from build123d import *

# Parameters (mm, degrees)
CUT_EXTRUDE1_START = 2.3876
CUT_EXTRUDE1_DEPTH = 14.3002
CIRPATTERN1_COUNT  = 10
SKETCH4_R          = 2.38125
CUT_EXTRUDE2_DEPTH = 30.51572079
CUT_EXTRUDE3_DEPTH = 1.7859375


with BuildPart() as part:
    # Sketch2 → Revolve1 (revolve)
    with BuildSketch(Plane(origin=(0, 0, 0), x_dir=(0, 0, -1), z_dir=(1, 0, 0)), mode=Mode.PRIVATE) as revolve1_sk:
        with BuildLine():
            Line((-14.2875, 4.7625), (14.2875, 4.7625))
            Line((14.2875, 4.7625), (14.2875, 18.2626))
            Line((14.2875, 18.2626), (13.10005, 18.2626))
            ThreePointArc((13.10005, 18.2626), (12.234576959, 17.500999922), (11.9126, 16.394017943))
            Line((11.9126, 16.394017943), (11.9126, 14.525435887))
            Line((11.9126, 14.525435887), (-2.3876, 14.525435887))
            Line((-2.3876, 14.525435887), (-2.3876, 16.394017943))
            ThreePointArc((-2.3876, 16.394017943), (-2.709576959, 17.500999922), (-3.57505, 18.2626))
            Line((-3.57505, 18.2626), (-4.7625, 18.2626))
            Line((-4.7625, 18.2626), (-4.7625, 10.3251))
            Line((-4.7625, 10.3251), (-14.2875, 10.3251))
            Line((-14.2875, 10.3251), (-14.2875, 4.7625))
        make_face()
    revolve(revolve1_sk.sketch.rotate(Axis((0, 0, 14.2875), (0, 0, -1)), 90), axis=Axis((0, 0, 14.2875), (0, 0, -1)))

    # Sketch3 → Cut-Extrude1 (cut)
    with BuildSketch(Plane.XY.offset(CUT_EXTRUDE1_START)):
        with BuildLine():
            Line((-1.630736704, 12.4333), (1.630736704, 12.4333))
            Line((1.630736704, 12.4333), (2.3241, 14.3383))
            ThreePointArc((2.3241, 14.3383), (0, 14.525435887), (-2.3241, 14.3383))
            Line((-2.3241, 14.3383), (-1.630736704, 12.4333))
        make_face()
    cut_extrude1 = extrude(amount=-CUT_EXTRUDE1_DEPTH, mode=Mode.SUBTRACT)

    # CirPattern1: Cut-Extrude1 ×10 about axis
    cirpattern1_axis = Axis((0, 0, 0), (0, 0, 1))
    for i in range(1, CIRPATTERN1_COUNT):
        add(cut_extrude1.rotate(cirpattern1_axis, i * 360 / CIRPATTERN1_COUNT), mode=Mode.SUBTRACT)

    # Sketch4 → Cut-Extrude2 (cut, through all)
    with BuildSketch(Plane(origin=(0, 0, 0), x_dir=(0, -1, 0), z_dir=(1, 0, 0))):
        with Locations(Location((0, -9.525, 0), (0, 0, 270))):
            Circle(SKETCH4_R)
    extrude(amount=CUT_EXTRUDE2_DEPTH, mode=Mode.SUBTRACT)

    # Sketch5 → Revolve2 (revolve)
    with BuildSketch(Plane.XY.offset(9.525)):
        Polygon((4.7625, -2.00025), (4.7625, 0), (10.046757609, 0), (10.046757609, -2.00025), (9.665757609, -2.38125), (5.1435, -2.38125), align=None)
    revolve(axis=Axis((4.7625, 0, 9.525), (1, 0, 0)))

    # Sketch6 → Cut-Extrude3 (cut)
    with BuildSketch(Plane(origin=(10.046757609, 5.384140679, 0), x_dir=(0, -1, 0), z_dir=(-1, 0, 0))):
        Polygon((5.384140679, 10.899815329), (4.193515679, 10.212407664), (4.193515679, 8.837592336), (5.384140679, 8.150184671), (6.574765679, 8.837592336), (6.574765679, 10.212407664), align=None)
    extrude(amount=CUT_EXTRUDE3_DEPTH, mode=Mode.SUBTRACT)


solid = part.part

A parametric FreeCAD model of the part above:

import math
import FreeCAD as App
import Part
import Sketcher
from FreeCAD import Vector
Q = App.Units.Quantity

doc = App.newDocument("Part")
params = doc.addObject("Spreadsheet::Sheet", "Params")
for row, (alias, value) in enumerate([
    ("sketch1_width", "0.3125 in"),
    ("sketch1_width2", "0.219 in"),
    ("sketch1_height", "1.125 in"),
    ("sketch1_height2", "0.563 in"),
    ("sketch1_height3", "0.375 in"),
    ("revolution_angle", "360 deg"),
    ("pocket1_length", "0.563 in"),
    ("sketch3_diameter", "0.1875 in"),
    ("revolution2_angle", "360 deg"),
    ("pocket3_length", "1.785937 mm"),
], start=1):
    params.set(f"A{row}", alias)
    params.set(f"B{row}", "=" + value)
    params.setAlias(f"B{row}", alias)

body = doc.addObject("PartDesign::Body", "Body")

# Sketch on YZ plane
sketch1 = doc.addObject("Sketcher::SketchObject", "Sketch")
body.addObject(sketch1)
sketch1.AttachmentSupport = (doc.YZ_Plane, [""])
sketch1.MapMode = "FlatFace"
sketch1.addGeometry(Part.LineSegment(Vector(4.7625, 14.2875, 0), Vector(4.7625, -14.2875, 0)), False)
sketch1.addGeometry(Part.LineSegment(Vector(4.7625, -14.2875, 0), Vector(18.2626, -14.2875, 0)), False)
sketch1.addGeometry(Part.LineSegment(Vector(18.2626, -14.2875, 0), Vector(18.2626, -13.10005, 0)), False)
sketch1.addGeometry(Part.ArcOfCircle(Part.Circle(Vector(16.394018, -13.976534, 0), Vector(0, 0, 1), 2.063934), math.radians(25.129564), math.radians(90)), False)
sketch1.addGeometry(Part.LineSegment(Vector(16.394018, -11.9126, 0), Vector(14.525436, -11.9126, 0)), False)
sketch1.addGeometry(Part.LineSegment(Vector(14.525436, -11.9126, 0), Vector(14.525436, 2.3876, 0)), False)
sketch1.addGeometry(Part.LineSegment(Vector(14.525436, 2.3876, 0), Vector(16.394018, 2.3876, 0)), False)
sketch1.addGeometry(Part.ArcOfCircle(Part.Circle(Vector(16.394018, 4.451534, 0), Vector(0, 0, 1), 2.063934), math.radians(-90), math.radians(-25.129564)), False)
sketch1.addGeometry(Part.LineSegment(Vector(18.2626, 3.57505, 0), Vector(18.2626, 4.7625, 0)), False)
sketch1.addGeometry(Part.LineSegment(Vector(18.2626, 4.7625, 0), Vector(10.3251, 4.7625, 0)), False)
sketch1.addGeometry(Part.LineSegment(Vector(10.3251, 4.7625, 0), Vector(10.3251, 14.2875, 0)), False)
sketch1.addGeometry(Part.LineSegment(Vector(10.3251, 14.2875, 0), Vector(4.7625, 14.2875, 0)), False)
sketch1.addConstraint(Sketcher.Constraint("Coincident", 0, 2, 1, 1))
sketch1.addConstraint(Sketcher.Constraint("Coincident", 1, 2, 2, 1))
sketch1.addConstraint(Sketcher.Constraint("Coincident", 2, 2, 3, 1))
sketch1.addConstraint(Sketcher.Constraint("Tangent", 3, 2, 4, 1))
sketch1.addConstraint(Sketcher.Constraint("Coincident", 4, 2, 5, 1))
sketch1.addConstraint(Sketcher.Constraint("Coincident", 5, 2, 6, 1))
sketch1.addConstraint(Sketcher.Constraint("Tangent", 6, 2, 7, 1))
sketch1.addConstraint(Sketcher.Constraint("Coincident", 7, 2, 8, 1))
sketch1.addConstraint(Sketcher.Constraint("Coincident", 8, 2, 9, 1))
sketch1.addConstraint(Sketcher.Constraint("Coincident", 9, 2, 10, 1))
sketch1.addConstraint(Sketcher.Constraint("Coincident", 10, 2, 11, 1))
sketch1.addConstraint(Sketcher.Constraint("Coincident", 11, 2, 0, 1))
sketch1.addConstraint(Sketcher.Constraint("Vertical", 0))
sketch1.addConstraint(Sketcher.Constraint("Horizontal", 1))
sketch1.addConstraint(Sketcher.Constraint("Vertical", 2))
sketch1.addConstraint(Sketcher.Constraint("Horizontal", 4))
sketch1.addConstraint(Sketcher.Constraint("Vertical", 5))
sketch1.addConstraint(Sketcher.Constraint("Horizontal", 6))
sketch1.addConstraint(Sketcher.Constraint("Vertical", 8))
sketch1.addConstraint(Sketcher.Constraint("Horizontal", 9))
sketch1.addConstraint(Sketcher.Constraint("Vertical", 10))
sketch1.addConstraint(Sketcher.Constraint("Horizontal", 11))
sketch1.addConstraint(Sketcher.Constraint("Equal", 3, 7))
sketch1.addConstraint(Sketcher.Constraint("Vertical", 3, 3, 7, 3))
sketch1.addConstraint(Sketcher.Constraint("Vertical", 2, 2, 7, 2))
sketch1.addConstraint(Sketcher.Constraint("Equal", 2, 8))
sketch1.addConstraint(Sketcher.Constraint("DistanceX", 9, 2, 9, 1, Q("0.3125 in")))
sketch1.addConstraint(Sketcher.Constraint("DistanceX", 11, 2, 11, 1, Q("0.219 in")))
sketch1.addConstraint(Sketcher.Constraint("DistanceY", 0, 2, 0, 1, Q("1.125 in")))
sketch1.addConstraint(Sketcher.Constraint("DistanceY", 5, 1, 5, 2, Q("0.563 in")))
sketch1.addConstraint(Sketcher.Constraint("DistanceY", 10, 1, 10, 2, Q("0.375 in")))
sketch1.addConstraint(Sketcher.Constraint("DistanceX", -1, 1, 0, 2, Q("0.1875 in")))
sketch1.addConstraint(Sketcher.Constraint("DistanceY", 0, 2, -1, 1, Q("0.5625 in")))
sketch1.addConstraint(Sketcher.Constraint("Radius", 3, 2.063934))
sketch1.addConstraint(Sketcher.Constraint("DistanceY", 2, 1, 2, 2, 1.18745))
sketch1.addConstraint(Sketcher.Constraint("DistanceX", 4, 2, 4, 1, 1.868582))
sketch1.setExpression("Constraints[26]", "Params.sketch1_width")
sketch1.setExpression("Constraints[27]", "Params.sketch1_width2")
sketch1.setExpression("Constraints[28]", "Params.sketch1_height")
sketch1.setExpression("Constraints[29]", "Params.sketch1_height2")
sketch1.setExpression("Constraints[30]", "Params.sketch1_height3")
revolution = doc.addObject("PartDesign::Revolution", "Revolution")
body.addObject(revolution)
revolution.Profile = sketch1
revolution.ReferenceAxis = (sketch1, ["V_Axis"])
revolution.setExpression("Angle", "Params.revolution_angle")

# Sketch on XY plane
sketch2 = doc.addObject("Sketcher::SketchObject", "Sketch001")
body.addObject(sketch2)
sketch2.AttachmentSupport = (doc.XY_Plane, [""])
sketch2.MapMode = "FlatFace"
sketch2.AttachmentOffset = App.Placement(Vector(0, 0, 0.094 * 25.4), App.Rotation())
sketch2.addGeometry(Part.LineSegment(Vector(-1.630737, 12.4333, 0), Vector(1.630737, 12.4333, 0)), False)
sketch2.addGeometry(Part.LineSegment(Vector(1.630737, 12.4333, 0), Vector(2.3241, 14.3383, 0)), False)
sketch2.addGeometry(Part.ArcOfCircle(Part.Circle(Vector(0, 0, 0), Vector(0, 0, 1), 14.525436), math.radians(80.792983), math.radians(99.207017)), False)
sketch2.addGeometry(Part.LineSegment(Vector(-2.3241, 14.3383, 0), Vector(-1.630737, 12.4333, 0)), False)
sketch2.addConstraint(Sketcher.Constraint("Coincident", 0, 2, 1, 1))
sketch2.addConstraint(Sketcher.Constraint("Coincident", 1, 2, 2, 1))
sketch2.addConstraint(Sketcher.Constraint("Coincident", 2, 2, 3, 1))
sketch2.addConstraint(Sketcher.Constraint("Coincident", 3, 2, 0, 1))
sketch2.addConstraint(Sketcher.Constraint("Horizontal", 0))
sketch2.addConstraint(Sketcher.Constraint("Coincident", 2, 3, -1, 1))
sketch2.addConstraint(Sketcher.Constraint("Horizontal", 1, 2, 2, 2))
sketch2.addConstraint(Sketcher.Constraint("Equal", 1, 3))
sketch2.addConstraint(Sketcher.Constraint("Angle", 1, Q("70 deg")))
sketch2.addConstraint(Sketcher.Constraint("DistanceY", 0, 2, 1, 2, Q("0.075 in")))
sketch2.addConstraint(Sketcher.Constraint("DistanceX", 2, 2, 1, 2, Q("0.183 in")))
sketch2.addConstraint(Sketcher.Constraint("DistanceY", -1, 1, 0, 2, Q("0.4895 in")))
pocket1 = doc.addObject("PartDesign::Pocket", "Pocket")
body.addObject(pocket1)
pocket1.Profile = sketch2
pocket1.setExpression("Length", "Params.pocket1_length")
doc.recompute()

polarpattern = doc.addObject("PartDesign::PolarPattern", "PolarPattern")
body.addObject(polarpattern)
polarpattern.Originals = [pocket1]
polarpattern.Axis = (doc.Z_Axis, [""])
polarpattern.Angle = 360
polarpattern.Occurrences = 10
body.Tip = polarpattern

# Sketch on YZ plane
sketch3 = doc.addObject("Sketcher::SketchObject", "Sketch002")
body.addObject(sketch3)
sketch3.AttachmentSupport = (doc.YZ_Plane, [""])
sketch3.MapMode = "FlatFace"
sketch3.addGeometry(Part.Circle(Vector(0, 9.525, 0), Vector(0, 0, 1), 2.38125), False)
sketch3.addConstraint(Sketcher.Constraint("PointOnObject", 0, 3, -2))
sketch3.addConstraint(Sketcher.Constraint("Diameter", 0, Q("0.1875 in")))
sketch3.addConstraint(Sketcher.Constraint("DistanceY", -1, 1, 0, 3, Q("0.375 in")))
sketch3.setExpression("Constraints[1]", "Params.sketch3_diameter")
pocket2 = doc.addObject("PartDesign::Pocket", "Pocket001")
body.addObject(pocket2)
pocket2.Profile = sketch3
pocket2.Type = "ThroughAll"
pocket2.Reversed = True

# Sketch on XY plane
sketch4 = doc.addObject("Sketcher::SketchObject", "Sketch003")
body.addObject(sketch4)
sketch4.AttachmentSupport = (doc.XY_Plane, [""])
sketch4.MapMode = "FlatFace"
sketch4.AttachmentOffset = App.Placement(Vector(0, 0, 0.375 * 25.4), App.Rotation())
sketch4.addGeometry(Part.LineSegment(Vector(4.7625, 0, 0), Vector(4.7625, -2.00025, 0)), False)
sketch4.addGeometry(Part.LineSegment(Vector(4.7625, -2.00025, 0), Vector(5.1435, -2.38125, 0)), False)
sketch4.addGeometry(Part.LineSegment(Vector(5.1435, -2.38125, 0), Vector(9.665758, -2.38125, 0)), False)
sketch4.addGeometry(Part.LineSegment(Vector(9.665758, -2.38125, 0), Vector(10.046758, -2.00025, 0)), False)
sketch4.addGeometry(Part.LineSegment(Vector(10.046758, -2.00025, 0), Vector(10.046758, 0, 0)), False)
sketch4.addGeometry(Part.LineSegment(Vector(10.046758, 0, 0), Vector(4.7625, 0, 0)), False)
sketch4.addConstraint(Sketcher.Constraint("Coincident", 0, 2, 1, 1))
sketch4.addConstraint(Sketcher.Constraint("Coincident", 1, 2, 2, 1))
sketch4.addConstraint(Sketcher.Constraint("Coincident", 2, 2, 3, 1))
sketch4.addConstraint(Sketcher.Constraint("Coincident", 3, 2, 4, 1))
sketch4.addConstraint(Sketcher.Constraint("Coincident", 4, 2, 5, 1))
sketch4.addConstraint(Sketcher.Constraint("Coincident", 5, 2, 0, 1))
sketch4.addConstraint(Sketcher.Constraint("Vertical", 0))
sketch4.addConstraint(Sketcher.Constraint("Horizontal", 2))
sketch4.addConstraint(Sketcher.Constraint("Vertical", 4))
sketch4.addConstraint(Sketcher.Constraint("Horizontal", 5))
sketch4.addConstraint(Sketcher.Constraint("PointOnObject", 4, 2, -1))
sketch4.addConstraint(Sketcher.Constraint("Perpendicular", 1, 3))
sketch4.addConstraint(Sketcher.Constraint("Horizontal", 0, 2, 3, 2))
sketch4.addConstraint(Sketcher.Constraint("Equal", 1, 3))
sketch4.addConstraint(Sketcher.Constraint("DistanceX", -1, 1, 0, 2, Q("0.1875 in")))
sketch4.addConstraint(Sketcher.Constraint("DistanceY", 1, 2, -1, 1, Q("0.09375 in")))
sketch4.addConstraint(Sketcher.Constraint("DistanceX", 0, 2, 1, 2, Q("0.015 in")))
sketch4.addConstraint(Sketcher.Constraint("DistanceX", 2, 1, 2, 2, 4.522258))
revolution2 = doc.addObject("PartDesign::Revolution", "Revolution001")
body.addObject(revolution2)
revolution2.Profile = sketch4
revolution2.ReferenceAxis = (sketch4, ["H_Axis"])
revolution2.setExpression("Angle", "Params.revolution2_angle")

# Sketch on YZ plane
sketch5 = doc.addObject("Sketcher::SketchObject", "Sketch004")
body.addObject(sketch5)
sketch5.AttachmentSupport = (doc.YZ_Plane, [""])
sketch5.MapMode = "FlatFace"
sketch5.AttachmentOffset = App.Placement(Vector(0, 0, 10.046758), App.Rotation())
sketch5.addGeometry(Part.LineSegment(Vector(0, 10.899815, 0), Vector(1.190625, 10.212408, 0)), False)
sketch5.addGeometry(Part.LineSegment(Vector(1.190625, 10.212408, 0), Vector(1.190625, 8.837592, 0)), False)
sketch5.addGeometry(Part.LineSegment(Vector(1.190625, 8.837592, 0), Vector(0, 8.150185, 0)), False)
sketch5.addGeometry(Part.LineSegment(Vector(0, 8.150185, 0), Vector(-1.190625, 8.837592, 0)), False)
sketch5.addGeometry(Part.LineSegment(Vector(-1.190625, 8.837592, 0), Vector(-1.190625, 10.212408, 0)), False)
sketch5.addGeometry(Part.LineSegment(Vector(-1.190625, 10.212408, 0), Vector(0, 10.899815, 0)), False)
sketch5.addConstraint(Sketcher.Constraint("Coincident", 0, 2, 1, 1))
sketch5.addConstraint(Sketcher.Constraint("Coincident", 1, 2, 2, 1))
sketch5.addConstraint(Sketcher.Constraint("Coincident", 2, 2, 3, 1))
sketch5.addConstraint(Sketcher.Constraint("Coincident", 3, 2, 4, 1))
sketch5.addConstraint(Sketcher.Constraint("Coincident", 4, 2, 5, 1))
sketch5.addConstraint(Sketcher.Constraint("Coincident", 5, 2, 0, 1))
sketch5.addConstraint(Sketcher.Constraint("Vertical", 1))
sketch5.addConstraint(Sketcher.Constraint("Vertical", 4))
sketch5.addConstraint(Sketcher.Constraint("Symmetric", 1, 2, 3, 2, -2))
sketch5.addConstraint(Sketcher.Constraint("PointOnObject", 2, 2, -2))
sketch5.addConstraint(Sketcher.Constraint("PointOnObject", 5, 2, -2))
sketch5.addConstraint(Sketcher.Constraint("Parallel", 0, 3))
sketch5.addConstraint(Sketcher.Constraint("Parallel", 2, 5))
sketch5.addConstraint(Sketcher.Constraint("Angle", 0, Q("-30 deg")))
sketch5.addConstraint(Sketcher.Constraint("DistanceX", -1, 1, 0, 2, Q("0.046875 in")))
sketch5.addConstraint(Sketcher.Constraint("DistanceY", 1, 2, 1, 1, 1.374815))
sketch5.addConstraint(Sketcher.Constraint("DistanceY", -1, 1, 0, 2, 10.212408))
pocket3 = doc.addObject("PartDesign::Pocket", "Pocket002")
body.addObject(pocket3)
pocket3.Profile = sketch5
pocket3.setExpression("Length", "Params.pocket3_length")

doc.recompute()
